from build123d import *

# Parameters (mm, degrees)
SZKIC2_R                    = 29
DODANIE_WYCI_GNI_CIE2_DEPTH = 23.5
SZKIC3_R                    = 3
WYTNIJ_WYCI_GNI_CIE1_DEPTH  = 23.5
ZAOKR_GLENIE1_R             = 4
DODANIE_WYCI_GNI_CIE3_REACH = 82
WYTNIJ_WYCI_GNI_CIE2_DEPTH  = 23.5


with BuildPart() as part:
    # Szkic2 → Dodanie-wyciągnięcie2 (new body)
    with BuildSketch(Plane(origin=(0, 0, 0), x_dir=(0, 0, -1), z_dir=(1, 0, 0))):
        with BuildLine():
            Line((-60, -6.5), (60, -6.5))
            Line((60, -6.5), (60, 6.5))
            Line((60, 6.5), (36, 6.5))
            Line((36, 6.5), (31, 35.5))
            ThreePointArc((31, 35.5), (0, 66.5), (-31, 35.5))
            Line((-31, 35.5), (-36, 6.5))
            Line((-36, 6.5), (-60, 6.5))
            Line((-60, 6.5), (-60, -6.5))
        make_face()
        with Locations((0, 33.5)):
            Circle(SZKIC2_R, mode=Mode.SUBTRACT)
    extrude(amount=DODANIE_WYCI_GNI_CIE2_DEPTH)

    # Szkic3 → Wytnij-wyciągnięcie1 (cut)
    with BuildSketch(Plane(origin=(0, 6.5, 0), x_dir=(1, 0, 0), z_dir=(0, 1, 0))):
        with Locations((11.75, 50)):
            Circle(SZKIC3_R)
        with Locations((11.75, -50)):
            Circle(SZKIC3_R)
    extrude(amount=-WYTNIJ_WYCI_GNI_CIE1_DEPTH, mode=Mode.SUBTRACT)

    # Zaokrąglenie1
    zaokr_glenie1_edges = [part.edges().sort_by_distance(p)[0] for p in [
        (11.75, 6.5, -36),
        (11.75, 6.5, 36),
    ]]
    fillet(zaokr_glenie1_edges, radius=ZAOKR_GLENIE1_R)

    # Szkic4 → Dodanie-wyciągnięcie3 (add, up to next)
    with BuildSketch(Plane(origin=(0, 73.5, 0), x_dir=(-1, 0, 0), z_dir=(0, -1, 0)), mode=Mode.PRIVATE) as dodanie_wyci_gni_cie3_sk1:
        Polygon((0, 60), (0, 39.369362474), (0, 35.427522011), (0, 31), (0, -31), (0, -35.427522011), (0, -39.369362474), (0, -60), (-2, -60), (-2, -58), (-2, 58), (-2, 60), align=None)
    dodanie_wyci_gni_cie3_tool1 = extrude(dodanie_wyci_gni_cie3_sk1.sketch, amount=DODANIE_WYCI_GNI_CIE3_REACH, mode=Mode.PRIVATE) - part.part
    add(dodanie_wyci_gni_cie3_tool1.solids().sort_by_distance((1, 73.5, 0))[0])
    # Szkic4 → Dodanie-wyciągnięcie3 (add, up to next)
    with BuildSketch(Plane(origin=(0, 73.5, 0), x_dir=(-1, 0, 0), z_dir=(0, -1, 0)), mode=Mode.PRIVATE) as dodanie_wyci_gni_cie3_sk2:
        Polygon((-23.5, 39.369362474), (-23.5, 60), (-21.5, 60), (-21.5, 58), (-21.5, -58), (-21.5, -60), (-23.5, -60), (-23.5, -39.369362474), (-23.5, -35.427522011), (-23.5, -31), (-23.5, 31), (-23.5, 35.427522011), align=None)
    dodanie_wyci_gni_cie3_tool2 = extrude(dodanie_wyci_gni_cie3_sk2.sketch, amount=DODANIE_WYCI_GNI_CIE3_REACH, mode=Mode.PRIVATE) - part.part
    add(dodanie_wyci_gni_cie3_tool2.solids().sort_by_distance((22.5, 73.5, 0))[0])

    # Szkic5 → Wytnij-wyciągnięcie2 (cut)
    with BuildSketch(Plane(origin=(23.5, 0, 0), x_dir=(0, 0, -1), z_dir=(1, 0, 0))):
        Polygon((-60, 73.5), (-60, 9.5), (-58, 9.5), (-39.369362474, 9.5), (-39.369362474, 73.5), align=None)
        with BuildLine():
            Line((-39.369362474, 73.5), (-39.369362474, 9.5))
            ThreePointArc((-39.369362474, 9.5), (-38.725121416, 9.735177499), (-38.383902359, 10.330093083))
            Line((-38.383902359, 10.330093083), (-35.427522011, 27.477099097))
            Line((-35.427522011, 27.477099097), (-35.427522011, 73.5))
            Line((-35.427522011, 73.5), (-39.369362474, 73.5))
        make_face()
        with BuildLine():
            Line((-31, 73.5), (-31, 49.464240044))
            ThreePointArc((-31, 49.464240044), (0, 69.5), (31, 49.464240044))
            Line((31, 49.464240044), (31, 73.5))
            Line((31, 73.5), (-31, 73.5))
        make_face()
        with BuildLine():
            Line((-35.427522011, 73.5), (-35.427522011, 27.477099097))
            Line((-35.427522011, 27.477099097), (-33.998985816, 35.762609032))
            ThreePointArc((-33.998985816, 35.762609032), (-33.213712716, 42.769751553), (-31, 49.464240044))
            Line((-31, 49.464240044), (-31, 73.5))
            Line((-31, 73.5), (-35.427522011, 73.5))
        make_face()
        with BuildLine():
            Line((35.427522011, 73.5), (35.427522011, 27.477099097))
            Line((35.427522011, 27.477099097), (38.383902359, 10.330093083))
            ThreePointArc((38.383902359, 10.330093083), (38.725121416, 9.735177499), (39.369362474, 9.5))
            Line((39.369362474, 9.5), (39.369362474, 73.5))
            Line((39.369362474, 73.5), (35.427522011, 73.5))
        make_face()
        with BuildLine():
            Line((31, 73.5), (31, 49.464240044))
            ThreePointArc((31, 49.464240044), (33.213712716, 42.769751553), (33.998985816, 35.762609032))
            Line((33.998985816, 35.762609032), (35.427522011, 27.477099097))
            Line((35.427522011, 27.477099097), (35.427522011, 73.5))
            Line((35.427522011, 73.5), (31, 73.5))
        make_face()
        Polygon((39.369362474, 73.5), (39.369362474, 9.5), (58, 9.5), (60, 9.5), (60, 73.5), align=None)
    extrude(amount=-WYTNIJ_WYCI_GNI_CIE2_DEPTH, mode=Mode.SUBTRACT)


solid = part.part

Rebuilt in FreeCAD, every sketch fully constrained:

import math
import FreeCAD as App
import Part
import Sketcher
from FreeCAD import Vector


def edges_at(feature, points):
    """Names of the edges that pass closest to the given points."""
    edges = feature.Shape.Edges
    near = lambda p: min(range(len(edges)), key=lambda i: edges[i].distToShape(Part.Vertex(*p))[0])
    return sorted({f"Edge{near(p) + 1}" for p in points})


def add_polygon(sketch, points):
    """Adds a closed chain of lines whose ends are joined by coincident constraints."""
    first, n = sketch.GeometryCount, len(points)
    for a, b in zip(points, points[1:] + points[:1]):
        sketch.addGeometry(Part.LineSegment(App.Vector(*a, 0), App.Vector(*b, 0)), False)
    for i in range(n):
        sketch.addConstraint(Sketcher.Constraint("Coincident", first + i, 2, first + (i + 1) % n, 1))

doc = App.newDocument("Part")
body = doc.addObject("PartDesign::Body", "Body")

sketch1 = doc.addObject("Sketcher::SketchObject", "Sketch")
body.addObject(sketch1)
sketch1.AttachmentSupport = (doc.YZ_Plane, [""])
sketch1.MapMode = "FlatFace"
sketch1.addGeometry(Part.LineSegment(Vector(-6, 60, 0), Vector(-6, -60, 0)), False)
sketch1.addGeometry(Part.LineSegment(Vector(-6, -60, 0), Vector(6, -60, 0)), False)
sketch1.addGeometry(Part.LineSegment(Vector(6, -60, 0), Vector(6, -36, 0)), False)
sketch1.addGeometry(Part.LineSegment(Vector(6, -36, 0), Vector(36, -31, 0)), False)
sketch1.addGeometry(Part.ArcOfCircle(Part.Circle(Vector(36, 0, 0), Vector(0, 0, 1), 31), math.radians(-90), math.radians(90)), False)
sketch1.addGeometry(Part.LineSegment(Vector(36, 31, 0), Vector(6, 36, 0)), False)
sketch1.addGeometry(Part.LineSegment(Vector(6, 36, 0), Vector(6, 60, 0)), False)
sketch1.addGeometry(Part.LineSegment(Vector(6, 60, 0), Vector(-6, 60, 0)), False)
sketch1.addGeometry(Part.Circle(Vector(34, 0, 0), Vector(0, 0, 1), 29), False)
sketch1.addConstraint(Sketcher.Constraint("Coincident", 0, 2, 1, 1))
sketch1.addConstraint(Sketcher.Constraint("Coincident", 1, 2, 2, 1))
sketch1.addConstraint(Sketcher.Constraint("Coincident", 2, 2, 3, 1))
sketch1.addConstraint(Sketcher.Constraint("Coincident", 3, 2, 4, 1))
sketch1.addConstraint(Sketcher.Constraint("Coincident", 4, 2, 5, 1))
sketch1.addConstraint(Sketcher.Constraint("Coincident", 5, 2, 6, 1))
sketch1.addConstraint(Sketcher.Constraint("Coincident", 6, 2, 7, 1))
sketch1.addConstraint(Sketcher.Constraint("Coincident", 7, 2, 0, 1))
sketch1.addConstraint(Sketcher.Constraint("Vertical", 0))
sketch1.addConstraint(Sketcher.Constraint("Horizontal", 1))
sketch1.addConstraint(Sketcher.Constraint("Vertical", 2))
sketch1.addConstraint(Sketcher.Constraint("Vertical", 6))
sketch1.addConstraint(Sketcher.Constraint("Horizontal", 7))
sketch1.addConstraint(Sketcher.Constraint("Symmetric", 0, 2, 6, 2, -1, 1))
sketch1.addConstraint(Sketcher.Constraint("Symmetric", 3, 2, 4, 2, -1))
sketch1.addConstraint(Sketcher.Constraint("Symmetric", 2, 2, 5, 2, -1))
sketch1.addConstraint(Sketcher.Constraint("PointOnObject", 8, 3, -1))
sketch1.addConstraint(Sketcher.Constraint("Vertical", 4, 3, 3, 2))
sketch1.addConstraint(Sketcher.Constraint("Diameter", 8, 58.0))
sketch1.addConstraint(Sketcher.Constraint("Radius", 4, 31.0))
sketch1.addConstraint(Sketcher.Constraint("DistanceX", 1, 1, 1, 2, 13.0))
sketch1.addConstraint(Sketcher.Constraint("DistanceY", 0, 2, 0, 1, 120.0))
sketch1.addConstraint(Sketcher.Constraint("DistanceY", 2, 1, 2, 2, 24.0))
sketch1.addConstraint(Sketcher.Constraint("DistanceX", 8, 3, 4, 3, 2.0))
sketch1.addConstraint(Sketcher.Constraint("DistanceX", 0, 2, 8, 3, 40.0))
pad1 = doc.addObject("PartDesign::Pad", "Pad")
body.addObject(pad1)
pad1.Profile = sketch1
pad1.Length = 23.5

sketch2 = doc.addObject("Sketcher::SketchObject", "Sketch001")
body.addObject(sketch2)
sketch2.AttachmentSupport = (doc.XZ_Plane, [""])
sketch2.MapMode = "FlatFace"
sketch2.AttachmentOffset = App.Placement(Vector(0, 0, -6.5), App.Rotation())
sketch2.addGeometry(Part.Circle(Vector(11.8, -50, 0), Vector(0, 0, 1), 3), False)
sketch2.addGeometry(Part.Circle(Vector(11.8, 50, 0), Vector(0, 0, 1), 3), False)
sketch2.addConstraint(Sketcher.Constraint("Equal", 0, 1))
sketch2.addConstraint(Sketcher.Constraint("Symmetric", 0, 3, 1, 3, -1))
sketch2.addConstraint(Sketcher.Constraint("Diameter", 0, 6.0))
sketch2.addConstraint(Sketcher.Constraint("DistanceY", 0, 3, -1, 1, 50.0))
sketch2.addConstraint(Sketcher.Constraint("DistanceX", -1, 1, 0, 3, 11.75))
pocket1 = doc.addObject("PartDesign::Pocket", "Pocket")
body.addObject(pocket1)
pocket1.Profile = sketch2
pocket1.Length = 23.5
pocket1.Reversed = True
doc.recompute()

fillet = doc.addObject("PartDesign::Fillet", "Fillet")
body.addObject(fillet)
fillet.Base = (pocket1, edges_at(pocket1, [(11.75, 6.5, -36), (11.75, 6.5, 36)]))
fillet.Radius = 4

sketch3 = doc.addObject("Sketcher::SketchObject", "Sketch002")
body.addObject(sketch3)
sketch3.AttachmentSupport = (doc.XZ_Plane, [""])
sketch3.MapMode = "FlatFace"
sketch3.AttachmentOffset = App.Placement(Vector(0, 0, -73.5), App.Rotation())
add_polygon(sketch3, [(0, 60), (0, -60), (2, -60), (2, 60)])
sketch3.addConstraint(Sketcher.Constraint("Vertical", 0))
sketch3.addConstraint(Sketcher.Constraint("Horizontal", 1))
sketch3.addConstraint(Sketcher.Constraint("Vertical", 2))
sketch3.addConstraint(Sketcher.Constraint("Horizontal", 3))
sketch3.addConstraint(Sketcher.Constraint("Symmetric", 0, 2, 3, 2, -1, 1))
sketch3.addConstraint(Sketcher.Constraint("DistanceX", 1, 1, 1, 2, 2.0))
sketch3.addConstraint(Sketcher.Constraint("DistanceY", 0, 2, 0, 1, 120.0))
pad2 = doc.addObject("PartDesign::Pad", "Pad001")
body.addObject(pad2)
pad2.Profile = sketch3
pad2.Type = "UpToFirst"

sketch4 = doc.addObject("Sketcher::SketchObject", "Sketch003")
body.addObject(sketch4)
sketch4.AttachmentSupport = (doc.XZ_Plane, [""])
sketch4.MapMode = "FlatFace"
sketch4.AttachmentOffset = App.Placement(Vector(0, 0, -73.5), App.Rotation())
add_polygon(sketch4, [(23.5, -60), (23.5, 60), (21.5, 60), (21.5, -60)])
sketch4.addConstraint(Sketcher.Constraint("Vertical", 0))
sketch4.addConstraint(Sketcher.Constraint("Horizontal", 1))
sketch4.addConstraint(Sketcher.Constraint("Vertical", 2))
sketch4.addConstraint(Sketcher.Constraint("Horizontal", 3))
sketch4.addConstraint(Sketcher.Constraint("DistanceX", 1, 2, 1, 1, 2.0))
sketch4.addConstraint(Sketcher.Constraint("DistanceY", 0, 1, 0, 2, 120.0))
sketch4.addConstraint(Sketcher.Constraint("DistanceY", -1, 1, 0, 2, 60.0))
sketch4.addConstraint(Sketcher.Constraint("DistanceX", -1, 1, 0, 2, 23.5))
pad3 = doc.addObject("PartDesign::Pad", "Pad002")
body.addObject(pad3)
pad3.Profile = sketch4
pad3.Type = "UpToFirst"

sketch5 = doc.addObject("Sketcher::SketchObject", "Sketch004")
body.addObject(sketch5)
sketch5.AttachmentSupport = (doc.YZ_Plane, [""])
sketch5.MapMode = "FlatFace"
sketch5.AttachmentOffset = App.Placement(Vector(0, 0, 23.5), App.Rotation())
sketch5.addGeometry(Part.LineSegment(Vector(73.5, 60, 0), Vector(9.5, 60, 0)), False)
sketch5.addGeometry(Part.LineSegment(Vector(9.5, 60, 0), Vector(9.5, 39.4, 0)), False)
sketch5.addGeometry(Part.ArcOfCircle(Part.Circle(Vector(10.5, 39.4, 0), Vector(0, 0, 1), 1), math.radians(-180), math.radians(-100)), False)
sketch5.addGeometry(Part.LineSegment(Vector(10.3, 38.4, 0), Vector(27.5, 35.4, 0)), False)
sketch5.addGeometry(Part.LineSegment(Vector(27.5, 35.4, 0), Vector(35.8, 34, 0)), False)
sketch5.addGeometry(Part.ArcOfCircle(Part.Circle(Vector(35.5, 0, 0), Vector(0, 0, 1), 34), math.radians(66), math.radians(90)), False)
sketch5.addGeometry(Part.ArcOfCircle(Part.Circle(Vector(35.5, 0, 0), Vector(0, 0, 1), 34), math.radians(-66), math.radians(66)), False)
sketch5.addGeometry(Part.ArcOfCircle(Part.Circle(Vector(35.5, 0, 0), Vector(0, 0, 1), 34), math.radians(-90), math.radians(-66)), False)
sketch5.addGeometry(Part.LineSegment(Vector(35.8, -34, 0), Vector(27.5, -35.4, 0)), False)
sketch5.addGeometry(Part.LineSegment(Vector(27.5, -35.4, 0), Vector(10.3, -38.4, 0)), False)
sketch5.addGeometry(Part.ArcOfCircle(Part.Circle(Vector(10.5, -39.4, 0), Vector(0, 0, 1), 1), math.radians(100), math.radians(180)), False)
sketch5.addGeometry(Part.LineSegment(Vector(9.5, -39.4, 0), Vector(9.5, -60, 0)), False)
sketch5.addGeometry(Part.LineSegment(Vector(9.5, -60, 0), Vector(73.5, -60, 0)), False)
sketch5.addGeometry(Part.LineSegment(Vector(73.5, -60, 0), Vector(73.5, 60, 0)), False)
sketch5.addConstraint(Sketcher.Constraint("Coincident", 0, 2, 1, 1))
sketch5.addConstraint(Sketcher.Constraint("Tangent", 1, 2, 2, 1))
sketch5.addConstraint(Sketcher.Constraint("Tangent", 2, 2, 3, 1))
sketch5.addConstraint(Sketcher.Constraint("Coincident", 3, 2, 4, 1))
sketch5.addConstraint(Sketcher.Constraint("Coincident", 4, 2, 5, 2))
sketch5.addConstraint(Sketcher.Constraint("Tangent", 5, 1, 6, 2))
sketch5.addConstraint(Sketcher.Constraint("Tangent", 6, 1, 7, 2))
sketch5.addConstraint(Sketcher.Constraint("Coincident", 7, 1, 8, 1))
sketch5.addConstraint(Sketcher.Constraint("Coincident", 8, 2, 9, 1))
sketch5.addConstraint(Sketcher.Constraint("Tangent", 9, 2, 10, 1))
sketch5.addConstraint(Sketcher.Constraint("Tangent", 10, 2, 11, 1))
sketch5.addConstraint(Sketcher.Constraint("Coincident", 11, 2, 12, 1))
sketch5.addConstraint(Sketcher.Constraint("Coincident", 12, 2, 13, 1))
sketch5.addConstraint(Sketcher.Constraint("Coincident", 13, 2, 0, 1))
sketch5.addConstraint(Sketcher.Constraint("Horizontal", 0))
sketch5.addConstraint(Sketcher.Constraint("Vertical", 1))
sketch5.addConstraint(Sketcher.Constraint("Vertical", 11))
sketch5.addConstraint(Sketcher.Constraint("Horizontal", 12))
sketch5.addConstraint(Sketcher.Constraint("Vertical", 13))
sketch5.addConstraint(Sketcher.Constraint("Coincident", 7, 3, 5, 3))
sketch5.addConstraint(Sketcher.Constraint("Equal", 2, 10))
sketch5.addConstraint(Sketcher.Constraint("Symmetric", 2, 3, 10, 3, -1))
sketch5.addConstraint(Sketcher.Constraint("Symmetric", 5, 1, 6, 1, -1))
sketch5.addConstraint(Sketcher.Constraint("Symmetric", 3, 2, 8, 2, -1))
sketch5.addConstraint(Sketcher.Constraint("Parallel", 3, 4))
sketch5.addConstraint(Sketcher.Constraint("Parallel", 8, 9))
sketch5.addConstraint(Sketcher.Constraint("Equal", 1, 11))
sketch5.addConstraint(Sketcher.Constraint("Radius", 2, 1.0))
sketch5.addConstraint(Sketcher.Constraint("Radius", 5, 34.0))
sketch5.addConstraint(Sketcher.Constraint("DistanceX", 0, 2, 0, 1, 64.0))
sketch5.addConstraint(Sketcher.Constraint("DistanceY", 13, 1, 13, 2, 120.0))
sketch5.addConstraint(Sketcher.Constraint("DistanceY", -1, 1, 5, 1, 31.0))
sketch5.addConstraint(Sketcher.Constraint("DistanceX", 2, 3, 5, 3, 25.0))
sketch5.addConstraint(Sketcher.Constraint("Distance", 3, 17.4))
sketch5.addConstraint(Sketcher.Constraint("DistanceX", -1, 1, 2, 3, 10.5))
sketch5.addConstraint(Sketcher.Constraint("DistanceX", -1, 1, 3, 2, 27.477099))
sketch5.addConstraint(Sketcher.Constraint("DistanceY", 1, 2, 1, 1, 20.630638))
pocket2 = doc.addObject("PartDesign::Pocket", "Pocket001")
body.addObject(pocket2)
pocket2.Profile = sketch5
pocket2.Length = 23.5

doc.recompute()
